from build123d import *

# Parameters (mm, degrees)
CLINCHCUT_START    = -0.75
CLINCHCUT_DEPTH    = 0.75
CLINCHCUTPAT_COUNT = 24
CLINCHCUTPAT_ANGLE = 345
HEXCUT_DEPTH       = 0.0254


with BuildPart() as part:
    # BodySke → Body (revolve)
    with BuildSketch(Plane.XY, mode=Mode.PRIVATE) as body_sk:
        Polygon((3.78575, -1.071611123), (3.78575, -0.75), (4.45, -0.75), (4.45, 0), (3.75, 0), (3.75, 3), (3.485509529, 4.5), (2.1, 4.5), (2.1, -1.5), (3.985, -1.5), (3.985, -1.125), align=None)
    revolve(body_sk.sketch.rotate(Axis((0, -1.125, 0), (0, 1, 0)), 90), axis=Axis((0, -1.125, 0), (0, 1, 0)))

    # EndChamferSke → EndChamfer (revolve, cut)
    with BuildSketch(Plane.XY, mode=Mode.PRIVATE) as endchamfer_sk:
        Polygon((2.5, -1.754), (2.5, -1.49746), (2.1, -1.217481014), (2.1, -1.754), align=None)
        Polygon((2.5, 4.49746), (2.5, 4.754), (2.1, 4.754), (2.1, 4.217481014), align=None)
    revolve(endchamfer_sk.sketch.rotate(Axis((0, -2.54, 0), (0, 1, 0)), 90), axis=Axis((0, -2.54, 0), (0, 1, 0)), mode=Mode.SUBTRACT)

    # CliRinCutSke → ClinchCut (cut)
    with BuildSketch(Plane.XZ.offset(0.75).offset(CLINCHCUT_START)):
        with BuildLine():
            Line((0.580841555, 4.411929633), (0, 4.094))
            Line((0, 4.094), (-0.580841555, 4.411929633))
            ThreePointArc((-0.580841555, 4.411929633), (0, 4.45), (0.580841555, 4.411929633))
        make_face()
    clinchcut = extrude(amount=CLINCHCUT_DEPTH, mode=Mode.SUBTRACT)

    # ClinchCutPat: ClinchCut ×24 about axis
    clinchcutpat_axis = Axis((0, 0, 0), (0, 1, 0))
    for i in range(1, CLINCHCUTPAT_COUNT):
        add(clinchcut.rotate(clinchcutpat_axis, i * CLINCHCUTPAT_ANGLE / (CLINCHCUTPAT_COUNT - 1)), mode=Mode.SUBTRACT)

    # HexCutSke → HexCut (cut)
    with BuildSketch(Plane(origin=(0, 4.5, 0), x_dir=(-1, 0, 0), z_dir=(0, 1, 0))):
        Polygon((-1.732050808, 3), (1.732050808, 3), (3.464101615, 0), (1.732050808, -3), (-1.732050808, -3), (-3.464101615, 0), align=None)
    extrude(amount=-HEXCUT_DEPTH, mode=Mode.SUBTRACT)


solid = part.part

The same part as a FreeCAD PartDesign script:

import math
import FreeCAD as App
import Part
import Sketcher

V = App.Vector
Q = App.Units.Quantity


def add_polygon(sketch, points):
    """Adds a closed chain of lines whose ends are joined by coincident constraints."""
    first, n = sketch.GeometryCount, len(points)
    for a, b in zip(points, points[1:] + points[:1]):
        sketch.addGeometry(Part.LineSegment(App.Vector(*a, 0), App.Vector(*b, 0)), False)
    for i in range(n):
        sketch.addConstraint(Sketcher.Constraint("Coincident", first + i, 2, first + (i + 1) % n, 1))

doc = App.newDocument("Part")
params = doc.addObject("Spreadsheet::Sheet", "Params")
for row, (alias, value) in enumerate([
    ("sketch1_height", "3 mm"),
    ("sketch1_height2", "6 mm"),
    ("sketch1_width", "0.7 mm"),
    ("sketch1_height3", "0.75 mm"),
    ("revolution_angle", "360 deg"),
    ("sketch2_width", "0.4 mm"),
    ("groove_angle", "360 deg"),
    ("sketch3_radius", "4.45 mm"),
    ("pocket1_length", "0.75 mm"),
    ("pocket2_length", "0.0254 mm"),
], start=1):
    params.set(f"A{row}", alias)
    params.set(f"B{row}", "=" + value)
    params.setAlias(f"B{row}", alias)

body = doc.addObject("PartDesign::Body", "Body")

sketch1 = body.newObject("Sketcher::SketchObject", "Sketch")
sketch1.AttachmentSupport = (doc.getObject("XY_Plane"), [""])
sketch1.MapMode = "FlatFace"
add_polygon(sketch1, [(3.78575, -1.071611), (3.78575, -0.75), (4.45, -0.75), (4.45, 0), (3.75, 0), (3.75, 3), (3.48551, 4.5), (2.1, 4.5), (2.1, -1.5), (3.985, -1.5), (3.985, -1.125)])
sketch1.addConstraint([
    Sketcher.Constraint("Vertical", 0),
    Sketcher.Constraint("Horizontal", 1),
    Sketcher.Constraint("Vertical", 2),
    Sketcher.Constraint("Horizontal", 3),
    Sketcher.Constraint("Vertical", 4),
    Sketcher.Constraint("Horizontal", 6),
    Sketcher.Constraint("Vertical", 7),
    Sketcher.Constraint("Horizontal", 8),
    Sketcher.Constraint("Vertical", 9),
    Sketcher.Constraint("PointOnObject", 2, 2, -1),
    Sketcher.Constraint("DistanceY", 4, 1, 4, 2, Q("3 mm")),
    Sketcher.Constraint("DistanceY", 7, 2, 7, 1, Q("6 mm")),
    Sketcher.Constraint("Angle", 5, Q("100 deg")),
    Sketcher.Constraint("Angle", 10, Q("165 deg")),
    Sketcher.Constraint("DistanceX", 3, 2, 3, 1, Q("0.7 mm")),
    Sketcher.Constraint("DistanceY", 2, 1, 2, 2, Q("0.75 mm")),
    Sketcher.Constraint("DistanceY", -1, 1, 5, 2, Q("4.5 mm")),
    Sketcher.Constraint("DistanceX", -1, 1, 6, 2, Q("2.1 mm")),
    Sketcher.Constraint("DistanceX", 8, 1, 8, 2, Q("1.885 mm")),
    Sketcher.Constraint("DistanceY", 9, 1, 9, 2, Q("0.375 mm")),
    Sketcher.Constraint("DistanceX", -1, 1, 1, 2, Q("4.45 mm")),
    Sketcher.Constraint("DistanceX", 1, 1, 1, 2, Q("0.66425 mm")),
])
sketch1.setExpression("Constraints[21]", "Params.sketch1_height")
sketch1.setExpression("Constraints[22]", "Params.sketch1_height2")
sketch1.setExpression("Constraints[25]", "Params.sketch1_width")
sketch1.setExpression("Constraints[26]", "Params.sketch1_height3")
revolution = body.newObject("PartDesign::Revolution", "Revolution")
revolution.Profile = sketch1
revolution.ReferenceAxis = (sketch1, ["V_Axis"])
revolution.setExpression("Angle", "Params.revolution_angle")

sketch2 = body.newObject("Sketcher::SketchObject", "Sketch001")
sketch2.AttachmentSupport = (doc.getObject("XY_Plane"), [""])
sketch2.MapMode = "FlatFace"
add_polygon(sketch2, [(2.5, -1.754), (2.5, -1.49746), (2.1, -1.217481), (2.1, -1.754)])
add_polygon(sketch2, [(2.5, 4.49746), (2.5, 4.754), (2.1, 4.754), (2.1, 4.217481)])
sketch2.addConstraint([
    Sketcher.Constraint("Vertical", 0),
    Sketcher.Constraint("Vertical", 2),
    Sketcher.Constraint("Horizontal", 3),
    Sketcher.Constraint("Vertical", 4),
    Sketcher.Constraint("Horizontal", 5),
    Sketcher.Constraint("Vertical", 6),
    Sketcher.Constraint("Vertical", 3, 2, 4, 2),
    Sketcher.Constraint("Vertical", 2, 2, 5, 2),
    Sketcher.Constraint("Equal", 0, 4),
    Sketcher.Constraint("Equal", 2, 6),
    Sketcher.Constraint("DistanceX", 3, 1, 3, 2, Q("0.4 mm")),
    Sketcher.Constraint("DistanceX", -1, 1, 0, 2, Q("2.5 mm")),
    Sketcher.Constraint("Angle", 1, Q("145.01 deg")),
    Sketcher.Constraint("DistanceY", 2, 2, -1, 1, Q("1.754 mm")),
    Sketcher.Constraint("DistanceY", -1, 1, 4, 2, Q("4.754 mm")),
    Sketcher.Constraint("DistanceY", 0, 1, 0, 2, Q("0.25654 mm")),
])
sketch2.setExpression("Constraints[18]", "Params.sketch2_width")
groove = body.newObject("PartDesign::Groove", "Groove")
groove.Profile = sketch2
groove.ReferenceAxis = (sketch2, ["V_Axis"])
groove.setExpression("Angle", "Params.groove_angle")

sketch3 = body.newObject("Sketcher::SketchObject", "Sketch002")
sketch3.AttachmentSupport = (doc.getObject("XZ_Plane"), [""])
sketch3.MapMode = "FlatFace"
sketch3.addGeometry([
    Part.LineSegment(V(0, 4.094, 0), V(0.580842, 4.41193, 0)),
    Part.ArcOfCircle(Part.Circle(V(0, 0, 0), V(0, 0, 1), 4.45), math.radians(82.5), math.radians(97.5)),
    Part.LineSegment(V(-0.580842, 4.41193, 0), V(0, 4.094, 0)),
], False)
sketch3.addConstraint([
    Sketcher.Constraint("Coincident", 0, 2, 1, 1),
    Sketcher.Constraint("Coincident", 1, 2, 2, 1),
    Sketcher.Constraint("Coincident", 2, 2, 0, 1),
    Sketcher.Constraint("Coincident", 1, 3, -1, 1),
    Sketcher.Constraint("PointOnObject", 2, 2, -2),
    Sketcher.Constraint("Horizontal", 0, 2, 1, 2),
    Sketcher.Constraint("Radius", 1, Q("4.45 mm")),
    Sketcher.Constraint("DistanceY", -1, 1, 2, 2, Q("4.094 mm")),
    Sketcher.Constraint("Distance", 0, Q("0.66216 mm")),
])
sketch3.setExpression("Constraints[6]", "Params.sketch3_radius")
pocket1 = body.newObject("PartDesign::Pocket", "Pocket")
pocket1.Profile = sketch3
pocket1.setExpression("Length", "Params.pocket1_length")
pocket1.Reversed = True
doc.recompute()

polarpattern = body.newObject("PartDesign::PolarPattern", "PolarPattern")
polarpattern.Originals = [pocket1]
polarpattern.Axis = (doc.getObject("Y_Axis"), [""])
polarpattern.Angle = 360
polarpattern.Occurrences = 24
body.Tip = polarpattern

sketch4 = body.newObject("Sketcher::SketchObject", "Sketch003")
sketch4.AttachmentSupport = (doc.getObject("XZ_Plane"), [""])
sketch4.MapMode = "FlatFace"
sketch4.AttachmentOffset = App.Placement(V(0, 0, -4.5), App.Rotation())
add_polygon(sketch4, [(-1.732051, 3), (1.732051, 3), (3.464102, 0), (1.732051, -3), (-1.732051, -3), (-3.464102, 0)])
sketch4.addConstraint([
    Sketcher.Constraint("Horizontal", 0),
    Sketcher.Constraint("Horizontal", 3),
    Sketcher.Constraint("Symmetric", 0, 2, 3, 2, -1, 1),
    Sketcher.Constraint("Symmetric", 1, 2, 4, 2, -1, 1),
    Sketcher.Constraint("PointOnObject", 1, 2, -1),
    Sketcher.Constraint("Parallel", 2, 5),
    Sketcher.Constraint("Vertical", 0, 2, 2, 2),
    Sketcher.Constraint("Angle", 1, Q("-60 deg")),
    Sketcher.Constraint("DistanceY", -1, 1, 0, 2, Q("3 mm")),
    Sketcher.Constraint("DistanceX", 0, 1, 0, 2, Q("3.464102 mm")),
])
pocket2 = body.newObject("PartDesign::Pocket", "Pocket001")
pocket2.Profile = sketch4
pocket2.setExpression("Length", "Params.pocket2_length")
pocket2.Reversed = True

doc.recompute()
